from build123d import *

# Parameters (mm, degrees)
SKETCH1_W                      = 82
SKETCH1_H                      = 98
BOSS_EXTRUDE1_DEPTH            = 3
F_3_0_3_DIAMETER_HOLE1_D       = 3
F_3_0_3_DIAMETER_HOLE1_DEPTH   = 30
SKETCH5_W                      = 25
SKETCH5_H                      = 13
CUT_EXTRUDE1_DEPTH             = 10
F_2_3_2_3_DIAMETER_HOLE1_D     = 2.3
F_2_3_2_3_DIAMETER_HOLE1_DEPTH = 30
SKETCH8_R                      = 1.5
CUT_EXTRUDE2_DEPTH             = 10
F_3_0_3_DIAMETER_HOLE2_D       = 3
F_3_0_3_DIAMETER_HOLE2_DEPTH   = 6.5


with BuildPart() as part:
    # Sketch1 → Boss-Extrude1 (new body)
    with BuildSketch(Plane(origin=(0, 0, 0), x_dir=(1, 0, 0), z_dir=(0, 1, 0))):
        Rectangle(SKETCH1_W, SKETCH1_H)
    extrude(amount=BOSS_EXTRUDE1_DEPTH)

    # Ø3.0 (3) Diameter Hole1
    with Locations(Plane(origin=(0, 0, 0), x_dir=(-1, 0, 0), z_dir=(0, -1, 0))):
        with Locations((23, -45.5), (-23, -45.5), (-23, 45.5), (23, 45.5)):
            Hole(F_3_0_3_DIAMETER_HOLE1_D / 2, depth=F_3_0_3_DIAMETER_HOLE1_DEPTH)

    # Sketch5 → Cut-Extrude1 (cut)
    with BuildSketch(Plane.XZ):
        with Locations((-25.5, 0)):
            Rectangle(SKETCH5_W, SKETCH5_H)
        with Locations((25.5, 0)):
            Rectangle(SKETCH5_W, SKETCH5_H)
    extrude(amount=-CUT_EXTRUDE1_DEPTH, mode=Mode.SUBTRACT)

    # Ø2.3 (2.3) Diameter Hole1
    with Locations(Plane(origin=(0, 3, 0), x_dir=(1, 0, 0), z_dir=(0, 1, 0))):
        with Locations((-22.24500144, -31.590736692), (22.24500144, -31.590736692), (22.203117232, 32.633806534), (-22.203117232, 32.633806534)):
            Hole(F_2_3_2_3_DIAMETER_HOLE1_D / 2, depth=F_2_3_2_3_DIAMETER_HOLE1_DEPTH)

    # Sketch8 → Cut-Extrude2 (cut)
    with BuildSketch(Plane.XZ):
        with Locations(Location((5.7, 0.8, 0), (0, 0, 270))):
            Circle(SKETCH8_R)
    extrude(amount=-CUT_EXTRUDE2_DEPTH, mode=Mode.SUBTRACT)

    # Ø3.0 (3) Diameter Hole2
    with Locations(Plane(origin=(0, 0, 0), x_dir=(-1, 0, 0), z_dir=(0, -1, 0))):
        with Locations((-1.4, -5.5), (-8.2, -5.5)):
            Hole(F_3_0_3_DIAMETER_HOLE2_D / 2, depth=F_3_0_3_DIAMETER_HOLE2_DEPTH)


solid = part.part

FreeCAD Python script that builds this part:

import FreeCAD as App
import Part
import Sketcher
from FreeCAD import Vector
Q = App.Units.Quantity


def add_polygon(sketch, points):
    """Adds a closed chain of lines whose ends are joined by coincident constraints."""
    first, n = sketch.GeometryCount, len(points)
    for a, b in zip(points, points[1:] + points[:1]):
        sketch.addGeometry(Part.LineSegment(App.Vector(*a, 0), App.Vector(*b, 0)), False)
    for i in range(n):
        sketch.addConstraint(Sketcher.Constraint("Coincident", first + i, 2, first + (i + 1) % n, 1))

doc = App.newDocument("Part")
params = doc.addObject("Spreadsheet::Sheet", "Params")
for row, (alias, value) in enumerate([
    ("sketch1_width", "82 mm"),
    ("sketch1_height", "98 mm"),
    ("pad1_length", "3 mm"),
    ("sketch2_diameter", "3 mm"),
    ("hole_diameter", "3 mm"),
    ("hole_depth", "30 mm"),
    ("sketch3_width", "25 mm"),
    ("sketch3_height", "13 mm"),
    ("pocket1_length", "10 mm"),
    ("sketch4_diameter", "2.3 mm"),
    ("hole2_diameter", "2.3 mm"),
    ("hole2_depth", "30 mm"),
    ("sketch5_diameter", "3 mm"),
    ("pocket2_length", "10 mm"),
    ("sketch6_diameter", "3 mm"),
    ("hole3_diameter", "3 mm"),
    ("hole3_depth", "6.5 mm"),
], start=1):
    params.set(f"A{row}", alias)
    params.set(f"B{row}", "=" + value)
    params.setAlias(f"B{row}", alias)

body = doc.addObject("PartDesign::Body", "Body")

# Sketch on XZ plane
sketch1 = doc.addObject("Sketcher::SketchObject", "Sketch")
body.addObject(sketch1)
sketch1.AttachmentSupport = (doc.XZ_Plane, [""])
sketch1.MapMode = "FlatFace"
add_polygon(sketch1, [(-41, -49), (-41, 49), (41, 49), (41, -49)])  # lines 0-3
sketch1.addConstraint(Sketcher.Constraint("Vertical", 0))
sketch1.addConstraint(Sketcher.Constraint("Horizontal", 1))
sketch1.addConstraint(Sketcher.Constraint("Vertical", 2))
sketch1.addConstraint(Sketcher.Constraint("Horizontal", 3))
sketch1.addConstraint(Sketcher.Constraint("Symmetric", 0, 2, 2, 2, -1, 1))
sketch1.addConstraint(Sketcher.Constraint("DistanceX", 1, 1, 1, 2, Q("82 mm")))
sketch1.addConstraint(Sketcher.Constraint("DistanceY", 0, 1, 0, 2, Q("98 mm")))
sketch1.setExpression("Constraints[9]", "Params.sketch1_width")
sketch1.setExpression("Constraints[10]", "Params.sketch1_height")
pad1 = doc.addObject("PartDesign::Pad", "Pad")
body.addObject(pad1)
pad1.Profile = sketch1
pad1.setExpression("Length", "Params.pad1_length")
pad1.Reversed = True

# Sketch on XZ plane
sketch2 = doc.addObject("Sketcher::SketchObject", "Sketch001")
body.addObject(sketch2)
sketch2.AttachmentSupport = (doc.XZ_Plane, [""])
sketch2.MapMode = "FlatFace"
sketch2.addGeometry(Part.Circle(Vector(-23, 45.5, 0), Vector(0, 0, 1), 1.5), False)
sketch2.addGeometry(Part.Circle(Vector(23, 45.5, 0), Vector(0, 0, 1), 1.5), False)
sketch2.addGeometry(Part.Circle(Vector(23, -45.5, 0), Vector(0, 0, 1), 1.5), False)
sketch2.addGeometry(Part.Circle(Vector(-23, -45.5, 0), Vector(0, 0, 1), 1.5), False)
sketch2.addConstraint(Sketcher.Constraint("Equal", 0, 1))
sketch2.addConstraint(Sketcher.Constraint("Equal", 1, 2))
sketch2.addConstraint(Sketcher.Constraint("Equal", 2, 3))
sketch2.addConstraint(Sketcher.Constraint("Symmetric", 0, 3, 2, 3, -1, 1))
sketch2.addConstraint(Sketcher.Constraint("Symmetric", 1, 3, 3, 3, -1, 1))
sketch2.addConstraint(Sketcher.Constraint("Symmetric", 0, 3, 1, 3, -2))
sketch2.addConstraint(Sketcher.Constraint("Diameter", 0, Q("3 mm")))
sketch2.addConstraint(Sketcher.Constraint("DistanceX", 0, 3, -1, 1, Q("23 mm")))
sketch2.addConstraint(Sketcher.Constraint("DistanceY", 2, 3, 1, 3, Q("91 mm")))
sketch2.setExpression("Constraints[6]", "Params.sketch2_diameter")
doc.recompute()
hole = doc.addObject("PartDesign::Hole", "Hole")
body.addObject(hole)
hole.Profile = sketch2
hole.ThreadType = "None"
hole.setExpression("Diameter", "Params.hole_diameter")
hole.DepthType = "Dimension"
hole.setExpression("Depth", "Params.hole_depth")
hole.DrillPoint = "Flat"

# Sketch on XZ plane
sketch3 = doc.addObject("Sketcher::SketchObject", "Sketch002")
body.addObject(sketch3)
sketch3.AttachmentSupport = (doc.XZ_Plane, [""])
sketch3.MapMode = "FlatFace"
add_polygon(sketch3, [(-38, 6), (-38, -6), (-13, -6), (-13, 6)])  # lines 0-3
add_polygon(sketch3, [(13, 6), (13, -6), (38, -6), (38, 6)])  # lines 4-7
sketch3.addConstraint(Sketcher.Constraint("Vertical", 0))
sketch3.addConstraint(Sketcher.Constraint("Horizontal", 1))
sketch3.addConstraint(Sketcher.Constraint("Vertical", 2))
sketch3.addConstraint(Sketcher.Constraint("Horizontal", 3))
sketch3.addConstraint(Sketcher.Constraint("Vertical", 4))
sketch3.addConstraint(Sketcher.Constraint("Horizontal", 5))
sketch3.addConstraint(Sketcher.Constraint("Vertical", 6))
sketch3.addConstraint(Sketcher.Constraint("Horizontal", 7))
sketch3.addConstraint(Sketcher.Constraint("Symmetric", 2, 2, 4, 2, -1, 1))
sketch3.addConstraint(Sketcher.Constraint("Symmetric", 0, 2, 6, 2, -1, 1))
sketch3.addConstraint(Sketcher.Constraint("Horizontal", 1, 2, 4, 2))
sketch3.addConstraint(Sketcher.Constraint("DistanceX", 1, 1, 1, 2, Q("25 mm")))
sketch3.addConstraint(Sketcher.Constraint("DistanceY", 0, 2, 0, 1, Q("13 mm")))
sketch3.addConstraint(Sketcher.Constraint("DistanceX", 0, 2, -1, 1, Q("38 mm")))
sketch3.setExpression("Constraints[19]", "Params.sketch3_width")
sketch3.setExpression("Constraints[20]", "Params.sketch3_height")
pocket1 = doc.addObject("PartDesign::Pocket", "Pocket")
body.addObject(pocket1)
pocket1.Profile = sketch3
pocket1.setExpression("Length", "Params.pocket1_length")

# Sketch on XZ plane
sketch4 = doc.addObject("Sketcher::SketchObject", "Sketch003")
body.addObject(sketch4)
sketch4.AttachmentSupport = (doc.XZ_Plane, [""])
sketch4.MapMode = "FlatFace"
sketch4.AttachmentOffset = App.Placement(Vector(0, 0, -3), App.Rotation())
sketch4.addGeometry(Part.Circle(Vector(-22.2, 31.6, 0), Vector(0, 0, 1), 1.1), False)
sketch4.addGeometry(Part.Circle(Vector(22.2, 31.6, 0), Vector(0, 0, 1), 1.1), False)
sketch4.addGeometry(Part.Circle(Vector(22.2, -32.6, 0), Vector(0, 0, 1), 1.1), False)
sketch4.addGeometry(Part.Circle(Vector(-22.2, -32.6, 0), Vector(0, 0, 1), 1.1), False)
sketch4.addConstraint(Sketcher.Constraint("Equal", 0, 1))
sketch4.addConstraint(Sketcher.Constraint("Equal", 1, 2))
sketch4.addConstraint(Sketcher.Constraint("Equal", 2, 3))
sketch4.addConstraint(Sketcher.Constraint("Symmetric", 0, 3, 1, 3, -2))
sketch4.addConstraint(Sketcher.Constraint("Symmetric", 2, 3, 3, 3, -2))
sketch4.addConstraint(Sketcher.Constraint("Diameter", 0, Q("2.3 mm")))
sketch4.addConstraint(Sketcher.Constraint("DistanceX", 0, 3, -1, 1, Q("22.245001 mm")))
sketch4.addConstraint(Sketcher.Constraint("DistanceX", 0, 3, 2, 3, Q("44.448119 mm")))
sketch4.addConstraint(Sketcher.Constraint("DistanceY", -1, 1, 0, 3, Q("31.590737 mm")))
sketch4.addConstraint(Sketcher.Constraint("DistanceY", 2, 3, -1, 1, Q("32.633807 mm")))
sketch4.setExpression("Constraints[5]", "Params.sketch4_diameter")
doc.recompute()
hole2 = doc.addObject("PartDesign::Hole", "Hole001")
body.addObject(hole2)
hole2.Profile = sketch4
hole2.ThreadType = "None"
hole2.setExpression("Diameter", "Params.hole2_diameter")
hole2.DepthType = "Dimension"
hole2.setExpression("Depth", "Params.hole2_depth")
hole2.DrillPoint = "Flat"
hole2.Reversed = True

# Sketch on XZ plane
sketch5 = doc.addObject("Sketcher::SketchObject", "Sketch004")
body.addObject(sketch5)
sketch5.AttachmentSupport = (doc.XZ_Plane, [""])
sketch5.MapMode = "FlatFace"
sketch5.addGeometry(Part.Circle(Vector(5.7, 0.8, 0), Vector(0, 0, 1), 1.5), False)
sketch5.addConstraint(Sketcher.Constraint("Diameter", 0, Q("3 mm")))
sketch5.addConstraint(Sketcher.Constraint("DistanceX", -1, 1, 0, 3, Q("5.7 mm")))
sketch5.addConstraint(Sketcher.Constraint("DistanceY", -1, 1, 0, 3, Q("0.8 mm")))
sketch5.setExpression("Constraints[0]", "Params.sketch5_diameter")
pocket2 = doc.addObject("PartDesign::Pocket", "Pocket001")
body.addObject(pocket2)
pocket2.Profile = sketch5
pocket2.setExpression("Length", "Params.pocket2_length")

# Sketch on XZ plane
sketch6 = doc.addObject("Sketcher::SketchObject", "Sketch005")
body.addObject(sketch6)
sketch6.AttachmentSupport = (doc.XZ_Plane, [""])
sketch6.MapMode = "FlatFace"
sketch6.addGeometry(Part.Circle(Vector(1.4, 5.5, 0), Vector(0, 0, 1), 1.5), False)
sketch6.addGeometry(Part.Circle(Vector(8.2, 5.5, 0), Vector(0, 0, 1), 1.5), False)
sketch6.addConstraint(Sketcher.Constraint("Equal", 0, 1))
sketch6.addConstraint(Sketcher.Constraint("Horizontal", 0, 3, 1, 3))
sketch6.addConstraint(Sketcher.Constraint("Diameter", 0, Q("3 mm")))
sketch6.addConstraint(Sketcher.Constraint("DistanceX", -1, 1, 0, 3, Q("1.4 mm")))
sketch6.addConstraint(Sketcher.Constraint("DistanceY", -1, 1, 0, 3, Q("5.5 mm")))
sketch6.addConstraint(Sketcher.Constraint("DistanceX", -1, 1, 1, 3, Q("8.2 mm")))
sketch6.setExpression("Constraints[2]", "Params.sketch6_diameter")
doc.recompute()
hole3 = doc.addObject("PartDesign::Hole", "Hole002")
body.addObject(hole3)
hole3.Profile = sketch6
hole3.ThreadType = "None"
hole3.setExpression("Diameter", "Params.hole3_diameter")
hole3.DepthType = "Dimension"
hole3.setExpression("Depth", "Params.hole3_depth")
hole3.DrillPoint = "Flat"

doc.recompute()
